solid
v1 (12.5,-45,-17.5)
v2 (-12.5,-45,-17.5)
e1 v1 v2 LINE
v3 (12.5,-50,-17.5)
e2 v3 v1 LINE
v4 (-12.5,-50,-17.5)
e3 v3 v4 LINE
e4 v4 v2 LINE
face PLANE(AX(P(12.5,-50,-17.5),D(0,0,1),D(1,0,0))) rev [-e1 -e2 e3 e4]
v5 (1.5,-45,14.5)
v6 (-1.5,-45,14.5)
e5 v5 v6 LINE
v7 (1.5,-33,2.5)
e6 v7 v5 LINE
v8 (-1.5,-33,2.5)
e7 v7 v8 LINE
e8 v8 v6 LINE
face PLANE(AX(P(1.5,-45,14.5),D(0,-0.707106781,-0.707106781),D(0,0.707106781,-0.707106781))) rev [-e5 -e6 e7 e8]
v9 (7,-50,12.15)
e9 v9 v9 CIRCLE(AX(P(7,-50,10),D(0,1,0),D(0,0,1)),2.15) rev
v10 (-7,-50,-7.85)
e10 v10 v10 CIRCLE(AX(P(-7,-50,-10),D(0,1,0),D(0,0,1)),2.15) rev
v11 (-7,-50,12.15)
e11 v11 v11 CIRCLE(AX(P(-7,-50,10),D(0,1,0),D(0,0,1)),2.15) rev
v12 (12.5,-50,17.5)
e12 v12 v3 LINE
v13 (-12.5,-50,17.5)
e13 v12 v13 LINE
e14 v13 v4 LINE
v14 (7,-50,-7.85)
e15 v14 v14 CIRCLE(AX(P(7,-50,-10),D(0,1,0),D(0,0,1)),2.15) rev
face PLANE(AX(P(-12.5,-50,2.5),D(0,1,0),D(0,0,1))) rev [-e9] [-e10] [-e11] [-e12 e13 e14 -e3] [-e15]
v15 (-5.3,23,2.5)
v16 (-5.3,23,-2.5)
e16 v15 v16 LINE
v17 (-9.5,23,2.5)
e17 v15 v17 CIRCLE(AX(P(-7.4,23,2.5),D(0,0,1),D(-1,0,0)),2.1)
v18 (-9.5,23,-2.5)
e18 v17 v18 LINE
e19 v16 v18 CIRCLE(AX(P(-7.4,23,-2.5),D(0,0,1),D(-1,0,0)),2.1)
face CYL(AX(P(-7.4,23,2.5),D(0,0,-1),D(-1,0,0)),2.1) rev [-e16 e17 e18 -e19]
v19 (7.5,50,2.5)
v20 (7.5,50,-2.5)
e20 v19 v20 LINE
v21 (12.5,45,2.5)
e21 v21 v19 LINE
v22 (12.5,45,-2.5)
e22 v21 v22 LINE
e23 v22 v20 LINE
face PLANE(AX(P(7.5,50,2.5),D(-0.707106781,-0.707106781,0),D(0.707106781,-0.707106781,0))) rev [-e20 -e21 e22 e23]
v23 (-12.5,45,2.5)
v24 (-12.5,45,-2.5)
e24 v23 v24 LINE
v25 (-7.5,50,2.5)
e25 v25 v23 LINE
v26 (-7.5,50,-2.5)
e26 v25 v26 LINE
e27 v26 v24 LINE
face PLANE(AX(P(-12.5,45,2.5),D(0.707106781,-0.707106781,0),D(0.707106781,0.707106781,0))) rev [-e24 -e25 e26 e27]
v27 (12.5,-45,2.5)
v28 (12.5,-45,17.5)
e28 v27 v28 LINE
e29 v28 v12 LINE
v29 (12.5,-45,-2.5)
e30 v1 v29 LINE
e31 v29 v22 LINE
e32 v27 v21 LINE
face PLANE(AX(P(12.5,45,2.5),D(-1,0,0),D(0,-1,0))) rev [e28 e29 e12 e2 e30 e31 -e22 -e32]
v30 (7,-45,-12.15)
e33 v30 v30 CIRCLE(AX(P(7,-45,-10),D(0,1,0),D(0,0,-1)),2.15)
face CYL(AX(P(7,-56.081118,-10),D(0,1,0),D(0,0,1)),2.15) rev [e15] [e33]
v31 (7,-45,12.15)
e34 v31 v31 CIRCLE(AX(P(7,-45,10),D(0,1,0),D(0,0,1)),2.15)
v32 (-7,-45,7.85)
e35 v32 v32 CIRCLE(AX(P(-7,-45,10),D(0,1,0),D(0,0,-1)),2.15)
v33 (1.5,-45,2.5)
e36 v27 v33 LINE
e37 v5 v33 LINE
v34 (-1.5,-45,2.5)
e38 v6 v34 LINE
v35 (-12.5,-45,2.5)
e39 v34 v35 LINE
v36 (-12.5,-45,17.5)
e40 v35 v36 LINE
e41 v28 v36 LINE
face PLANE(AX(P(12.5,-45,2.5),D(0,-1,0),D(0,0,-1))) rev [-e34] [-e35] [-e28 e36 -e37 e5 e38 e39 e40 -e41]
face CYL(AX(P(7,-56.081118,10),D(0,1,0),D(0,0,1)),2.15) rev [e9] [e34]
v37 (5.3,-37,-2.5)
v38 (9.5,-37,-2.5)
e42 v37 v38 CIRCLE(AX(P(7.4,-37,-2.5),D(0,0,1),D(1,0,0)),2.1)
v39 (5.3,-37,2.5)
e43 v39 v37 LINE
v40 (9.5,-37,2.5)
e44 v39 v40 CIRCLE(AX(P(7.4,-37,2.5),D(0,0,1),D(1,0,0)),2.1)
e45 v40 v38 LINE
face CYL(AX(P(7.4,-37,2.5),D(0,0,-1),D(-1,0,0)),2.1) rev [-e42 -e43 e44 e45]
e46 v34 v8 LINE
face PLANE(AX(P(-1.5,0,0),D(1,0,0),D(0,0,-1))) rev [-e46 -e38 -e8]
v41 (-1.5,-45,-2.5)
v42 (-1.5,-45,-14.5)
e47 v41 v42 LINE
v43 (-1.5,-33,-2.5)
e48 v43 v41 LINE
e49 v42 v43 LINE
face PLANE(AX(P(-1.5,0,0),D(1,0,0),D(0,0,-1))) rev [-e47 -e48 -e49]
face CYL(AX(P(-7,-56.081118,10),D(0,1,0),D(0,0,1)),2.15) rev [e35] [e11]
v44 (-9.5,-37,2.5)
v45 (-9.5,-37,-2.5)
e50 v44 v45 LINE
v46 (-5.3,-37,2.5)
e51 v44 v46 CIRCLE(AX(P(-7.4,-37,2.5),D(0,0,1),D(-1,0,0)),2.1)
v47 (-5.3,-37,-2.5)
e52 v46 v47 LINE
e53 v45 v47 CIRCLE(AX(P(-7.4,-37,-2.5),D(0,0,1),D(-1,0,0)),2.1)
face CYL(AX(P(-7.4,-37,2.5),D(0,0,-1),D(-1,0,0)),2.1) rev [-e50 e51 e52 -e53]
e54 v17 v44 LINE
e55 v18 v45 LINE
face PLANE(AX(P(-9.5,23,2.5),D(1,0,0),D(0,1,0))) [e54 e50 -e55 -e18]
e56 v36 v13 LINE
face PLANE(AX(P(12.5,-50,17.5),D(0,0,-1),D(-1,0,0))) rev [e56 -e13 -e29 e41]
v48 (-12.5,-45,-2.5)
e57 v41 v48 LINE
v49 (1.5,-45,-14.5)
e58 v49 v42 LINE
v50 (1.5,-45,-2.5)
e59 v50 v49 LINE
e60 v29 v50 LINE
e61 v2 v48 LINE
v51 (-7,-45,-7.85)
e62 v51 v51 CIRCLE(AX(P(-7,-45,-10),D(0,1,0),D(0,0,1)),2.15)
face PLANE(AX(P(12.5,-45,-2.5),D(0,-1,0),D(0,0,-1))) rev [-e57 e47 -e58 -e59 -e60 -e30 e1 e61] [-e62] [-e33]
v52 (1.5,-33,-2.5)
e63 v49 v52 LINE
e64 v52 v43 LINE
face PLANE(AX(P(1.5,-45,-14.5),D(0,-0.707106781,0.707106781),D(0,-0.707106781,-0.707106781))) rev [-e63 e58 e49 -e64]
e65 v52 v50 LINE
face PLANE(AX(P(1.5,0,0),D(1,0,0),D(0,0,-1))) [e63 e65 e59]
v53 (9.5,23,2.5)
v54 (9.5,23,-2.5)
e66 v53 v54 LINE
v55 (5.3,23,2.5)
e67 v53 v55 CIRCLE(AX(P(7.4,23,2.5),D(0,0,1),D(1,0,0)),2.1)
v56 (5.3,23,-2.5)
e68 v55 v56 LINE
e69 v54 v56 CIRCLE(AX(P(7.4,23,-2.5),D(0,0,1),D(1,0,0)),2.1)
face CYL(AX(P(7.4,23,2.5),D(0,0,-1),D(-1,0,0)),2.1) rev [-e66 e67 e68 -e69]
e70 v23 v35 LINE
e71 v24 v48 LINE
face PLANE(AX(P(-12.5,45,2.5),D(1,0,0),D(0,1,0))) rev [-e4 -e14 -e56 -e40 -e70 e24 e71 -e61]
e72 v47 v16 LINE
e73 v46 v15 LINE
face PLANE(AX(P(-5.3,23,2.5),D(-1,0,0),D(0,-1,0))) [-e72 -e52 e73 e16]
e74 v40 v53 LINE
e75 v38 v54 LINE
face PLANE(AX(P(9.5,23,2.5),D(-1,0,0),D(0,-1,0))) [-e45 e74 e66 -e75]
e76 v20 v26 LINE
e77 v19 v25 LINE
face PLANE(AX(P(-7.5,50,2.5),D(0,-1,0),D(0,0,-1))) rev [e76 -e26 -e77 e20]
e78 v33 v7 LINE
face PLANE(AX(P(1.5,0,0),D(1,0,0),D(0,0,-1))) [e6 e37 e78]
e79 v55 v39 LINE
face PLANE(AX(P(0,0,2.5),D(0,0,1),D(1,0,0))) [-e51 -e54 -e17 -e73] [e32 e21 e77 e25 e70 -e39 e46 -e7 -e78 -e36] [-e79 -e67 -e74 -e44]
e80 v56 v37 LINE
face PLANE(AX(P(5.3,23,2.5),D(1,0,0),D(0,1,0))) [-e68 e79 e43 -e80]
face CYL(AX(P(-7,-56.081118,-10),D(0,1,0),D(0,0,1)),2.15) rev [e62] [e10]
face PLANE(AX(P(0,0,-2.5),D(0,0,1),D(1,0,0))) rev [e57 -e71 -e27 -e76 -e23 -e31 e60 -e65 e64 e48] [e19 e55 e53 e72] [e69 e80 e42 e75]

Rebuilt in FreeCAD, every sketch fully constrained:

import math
import FreeCAD as App
import Part
import Sketcher
from FreeCAD import Vector
Q = App.Units.Quantity


def add_polygon(sketch, points):
    """Adds a closed chain of lines whose ends are joined by coincident constraints."""
    first, n = sketch.GeometryCount, len(points)
    for a, b in zip(points, points[1:] + points[:1]):
        sketch.addGeometry(Part.LineSegment(App.Vector(*a, 0), App.Vector(*b, 0)), False)
    for i in range(n):
        sketch.addConstraint(Sketcher.Constraint("Coincident", first + i, 2, first + (i + 1) % n, 1))

doc = App.newDocument("Part")
body = doc.addObject("PartDesign::Body", "Body")

# Sketch on XY plane
sketch1 = doc.addObject("Sketcher::SketchObject", "Sketch")
body.addObject(sketch1)
sketch1.AttachmentSupport = (doc.XY_Plane, [""])
sketch1.MapMode = "FlatFace"
add_polygon(sketch1, [(-7.5, 50), (-12.5, 45), (-12.5, -50), (12.5, -50), (12.5, 45), (7.5, 50)])  # lines 0-5
sketch1.addGeometry(Part.LineSegment(Vector(9.5, 23, 0), Vector(9.5, -37, 0)), False)  # 6
sketch1.addGeometry(Part.ArcOfCircle(Part.Circle(Vector(7.4, -37, 0), Vector(0, 0, 1), 2.1), math.radians(180), math.radians(360)), False)  # 7
sketch1.addGeometry(Part.LineSegment(Vector(5.3, -37, 0), Vector(5.3, 23, 0)), False)  # 8
sketch1.addGeometry(Part.ArcOfCircle(Part.Circle(Vector(7.4, 23, 0), Vector(0, 0, 1), 2.1), math.radians(0), math.radians(180)), False)  # 9
sketch1.addGeometry(Part.ArcOfCircle(Part.Circle(Vector(-7.4, 23, 0), Vector(0, 0, 1), 2.1), math.radians(0), math.radians(180)), False)  # 10
sketch1.addGeometry(Part.LineSegment(Vector(-5.3, 23, 0), Vector(-5.3, -37, 0)), False)  # 11
sketch1.addGeometry(Part.ArcOfCircle(Part.Circle(Vector(-7.4, -37, 0), Vector(0, 0, 1), 2.1), math.radians(180), math.radians(360)), False)  # 12
sketch1.addGeometry(Part.LineSegment(Vector(-9.5, -37, 0), Vector(-9.5, 23, 0)), False)  # 13
sketch1.addConstraint(Sketcher.Constraint("Tangent", 6, 2, 7, 2))
sketch1.addConstraint(Sketcher.Constraint("Tangent", 7, 1, 8, 1))
sketch1.addConstraint(Sketcher.Constraint("Tangent", 8, 2, 9, 2))
sketch1.addConstraint(Sketcher.Constraint("Tangent", 9, 1, 6, 1))
sketch1.addConstraint(Sketcher.Constraint("Tangent", 10, 1, 11, 1))
sketch1.addConstraint(Sketcher.Constraint("Tangent", 11, 2, 12, 2))
sketch1.addConstraint(Sketcher.Constraint("Tangent", 12, 1, 13, 1))
sketch1.addConstraint(Sketcher.Constraint("Tangent", 13, 2, 10, 2))
sketch1.addConstraint(Sketcher.Constraint("Vertical", 1))
sketch1.addConstraint(Sketcher.Constraint("Horizontal", 2))
sketch1.addConstraint(Sketcher.Constraint("Vertical", 3))
sketch1.addConstraint(Sketcher.Constraint("Horizontal", 5))
sketch1.addConstraint(Sketcher.Constraint("Vertical", 6))
sketch1.addConstraint(Sketcher.Constraint("Vertical", 8))
sketch1.addConstraint(Sketcher.Constraint("Vertical", 11))
sketch1.addConstraint(Sketcher.Constraint("Vertical", 13))
sketch1.addConstraint(Sketcher.Constraint("Equal", 9, 10))
sketch1.addConstraint(Sketcher.Constraint("Symmetric", 9, 3, 10, 3, -2))
sketch1.addConstraint(Sketcher.Constraint("Symmetric", 0, 2, 3, 2, -2))
sketch1.addConstraint(Sketcher.Constraint("Perpendicular", 0, 4))
sketch1.addConstraint(Sketcher.Constraint("Horizontal", 7, 3, 12, 3))
sketch1.addConstraint(Sketcher.Constraint("Equal", 0, 4))
sketch1.addConstraint(Sketcher.Constraint("Radius", 7, Q("2.1 mm")))
sketch1.addConstraint(Sketcher.Constraint("DistanceX", 2, 1, 2, 2, Q("25 mm")))
sketch1.addConstraint(Sketcher.Constraint("DistanceX", 5, 2, 5, 1, Q("15 mm")))
sketch1.addConstraint(Sketcher.Constraint("DistanceY", 1, 2, 1, 1, Q("95 mm")))
sketch1.addConstraint(Sketcher.Constraint("DistanceY", 6, 2, 6, 1, Q("60 mm")))
sketch1.addConstraint(Sketcher.Constraint("DistanceY", 7, 3, -1, 1, Q("37 mm")))
sketch1.addConstraint(Sketcher.Constraint("DistanceY", -1, 1, 0, 2, Q("45 mm")))
sketch1.addConstraint(Sketcher.Constraint("DistanceX", 6, 2, 2, 2, Q("3 mm")))
pad1 = doc.addObject("PartDesign::Pad", "Pad")
body.addObject(pad1)
pad1.Profile = sketch1
pad1.Length = 5
pad1.Midplane = True

# Sketch on YZ plane
sketch2 = doc.addObject("Sketcher::SketchObject", "Sketch001")
body.addObject(sketch2)
sketch2.AttachmentSupport = (doc.YZ_Plane, [""])
sketch2.MapMode = "FlatFace"
add_polygon(sketch2, [(-45, -2), (-50, -2), (-50, -18), (-45, -18)])  # lines 0-3
add_polygon(sketch2, [(-45, 18), (-50, 18), (-50, 2), (-45, 2)])  # lines 4-7
sketch2.addConstraint(Sketcher.Constraint("Horizontal", 0))
sketch2.addConstraint(Sketcher.Constraint("Vertical", 1))
sketch2.addConstraint(Sketcher.Constraint("Horizontal", 2))
sketch2.addConstraint(Sketcher.Constraint("Vertical", 3))
sketch2.addConstraint(Sketcher.Constraint("Horizontal", 4))
sketch2.addConstraint(Sketcher.Constraint("Vertical", 5))
sketch2.addConstraint(Sketcher.Constraint("Horizontal", 6))
sketch2.addConstraint(Sketcher.Constraint("Vertical", 7))
sketch2.addConstraint(Sketcher.Constraint("Symmetric", 1, 2, 4, 2, -1))
sketch2.addConstraint(Sketcher.Constraint("Symmetric", 3, 2, 6, 2, -1))
sketch2.addConstraint(Sketcher.Constraint("DistanceX", 0, 2, 0, 1, Q("5 mm")))
sketch2.addConstraint(Sketcher.Constraint("DistanceY", 1, 2, 1, 1, Q("15 mm")))
sketch2.addConstraint(Sketcher.Constraint("DistanceX", 0, 2, -1, 1, Q("50 mm")))
sketch2.addConstraint(Sketcher.Constraint("DistanceY", 0, 2, 4, 2, Q("20 mm")))
pad2 = doc.addObject("PartDesign::Pad", "Pad001")
body.addObject(pad2)
pad2.Profile = sketch2
pad2.Length = 25
pad2.Midplane = True

# Sketch on YZ plane
sketch3 = doc.addObject("Sketcher::SketchObject", "Sketch002")
body.addObject(sketch3)
sketch3.AttachmentSupport = (doc.YZ_Plane, [""])
sketch3.MapMode = "FlatFace"
add_polygon(sketch3, [(-33, 2), (-45, 14), (-45, 2)])  # lines 0-2
add_polygon(sketch3, [(-33, -2), (-45, -2), (-45, -14)])  # lines 3-5
sketch3.addConstraint(Sketcher.Constraint("Vertical", 1))
sketch3.addConstraint(Sketcher.Constraint("Horizontal", 2))
sketch3.addConstraint(Sketcher.Constraint("Horizontal", 3))
sketch3.addConstraint(Sketcher.Constraint("Vertical", 4))
sketch3.addConstraint(Sketcher.Constraint("Symmetric", 1, 2, 3, 2, -1))
sketch3.addConstraint(Sketcher.Constraint("Perpendicular", 0, 5))
sketch3.addConstraint(Sketcher.Constraint("Vertical", 2, 2, 5, 2))
sketch3.addConstraint(Sketcher.Constraint("Equal", 3, 1))
sketch3.addConstraint(Sketcher.Constraint("DistanceX", 2, 1, 2, 2, Q("12 mm")))
sketch3.addConstraint(Sketcher.Constraint("DistanceX", 0, 2, -1, 1, Q("45 mm")))
sketch3.addConstraint(Sketcher.Constraint("DistanceY", 3, 2, 1, 2, Q("5 mm")))
pad3 = doc.addObject("PartDesign::Pad", "Pad002")
body.addObject(pad3)
pad3.Profile = sketch3
pad3.Length = 3
pad3.Midplane = True

# Sketch on XZ plane
sketch4 = doc.addObject("Sketcher::SketchObject", "Sketch003")
body.addObject(sketch4)
sketch4.AttachmentSupport = (doc.XZ_Plane, [""])
sketch4.MapMode = "FlatFace"
sketch4.AttachmentOffset = App.Placement(Vector(0, 0, 45), App.Rotation())
sketch4.addGeometry(Part.Circle(Vector(-7, -10, 0), Vector(0, 0, 1), 2.1), False)
sketch4.addGeometry(Part.Circle(Vector(7, -10, 0), Vector(0, 0, 1), 2.1), False)
sketch4.addGeometry(Part.Circle(Vector(7, 10, 0), Vector(0, 0, 1), 2.1), False)
sketch4.addGeometry(Part.Circle(Vector(-7, 10, 0), Vector(0, 0, 1), 2.1), False)
sketch4.addConstraint(Sketcher.Constraint("Equal", 0, 1))
sketch4.addConstraint(Sketcher.Constraint("Equal", 1, 2))
sketch4.addConstraint(Sketcher.Constraint("Equal", 2, 3))
sketch4.addConstraint(Sketcher.Constraint("Symmetric", 0, 3, 2, 3, -1, 1))
sketch4.addConstraint(Sketcher.Constraint("Symmetric", 1, 3, 3, 3, -1, 1))
sketch4.addConstraint(Sketcher.Constraint("Symmetric", 0, 3, 1, 3, -2))
sketch4.addConstraint(Sketcher.Constraint("Diameter", 0, Q("4.3 mm")))
sketch4.addConstraint(Sketcher.Constraint("DistanceX", 0, 3, -1, 1, Q("7 mm")))
sketch4.addConstraint(Sketcher.Constraint("DistanceY", 0, 3, -1, 1, Q("10 mm")))
pocket1 = doc.addObject("PartDesign::Pocket", "Pocket")
body.addObject(pocket1)
pocket1.Profile = sketch4
pocket1.Length = 5
pocket1.Reversed = True

doc.recompute()
